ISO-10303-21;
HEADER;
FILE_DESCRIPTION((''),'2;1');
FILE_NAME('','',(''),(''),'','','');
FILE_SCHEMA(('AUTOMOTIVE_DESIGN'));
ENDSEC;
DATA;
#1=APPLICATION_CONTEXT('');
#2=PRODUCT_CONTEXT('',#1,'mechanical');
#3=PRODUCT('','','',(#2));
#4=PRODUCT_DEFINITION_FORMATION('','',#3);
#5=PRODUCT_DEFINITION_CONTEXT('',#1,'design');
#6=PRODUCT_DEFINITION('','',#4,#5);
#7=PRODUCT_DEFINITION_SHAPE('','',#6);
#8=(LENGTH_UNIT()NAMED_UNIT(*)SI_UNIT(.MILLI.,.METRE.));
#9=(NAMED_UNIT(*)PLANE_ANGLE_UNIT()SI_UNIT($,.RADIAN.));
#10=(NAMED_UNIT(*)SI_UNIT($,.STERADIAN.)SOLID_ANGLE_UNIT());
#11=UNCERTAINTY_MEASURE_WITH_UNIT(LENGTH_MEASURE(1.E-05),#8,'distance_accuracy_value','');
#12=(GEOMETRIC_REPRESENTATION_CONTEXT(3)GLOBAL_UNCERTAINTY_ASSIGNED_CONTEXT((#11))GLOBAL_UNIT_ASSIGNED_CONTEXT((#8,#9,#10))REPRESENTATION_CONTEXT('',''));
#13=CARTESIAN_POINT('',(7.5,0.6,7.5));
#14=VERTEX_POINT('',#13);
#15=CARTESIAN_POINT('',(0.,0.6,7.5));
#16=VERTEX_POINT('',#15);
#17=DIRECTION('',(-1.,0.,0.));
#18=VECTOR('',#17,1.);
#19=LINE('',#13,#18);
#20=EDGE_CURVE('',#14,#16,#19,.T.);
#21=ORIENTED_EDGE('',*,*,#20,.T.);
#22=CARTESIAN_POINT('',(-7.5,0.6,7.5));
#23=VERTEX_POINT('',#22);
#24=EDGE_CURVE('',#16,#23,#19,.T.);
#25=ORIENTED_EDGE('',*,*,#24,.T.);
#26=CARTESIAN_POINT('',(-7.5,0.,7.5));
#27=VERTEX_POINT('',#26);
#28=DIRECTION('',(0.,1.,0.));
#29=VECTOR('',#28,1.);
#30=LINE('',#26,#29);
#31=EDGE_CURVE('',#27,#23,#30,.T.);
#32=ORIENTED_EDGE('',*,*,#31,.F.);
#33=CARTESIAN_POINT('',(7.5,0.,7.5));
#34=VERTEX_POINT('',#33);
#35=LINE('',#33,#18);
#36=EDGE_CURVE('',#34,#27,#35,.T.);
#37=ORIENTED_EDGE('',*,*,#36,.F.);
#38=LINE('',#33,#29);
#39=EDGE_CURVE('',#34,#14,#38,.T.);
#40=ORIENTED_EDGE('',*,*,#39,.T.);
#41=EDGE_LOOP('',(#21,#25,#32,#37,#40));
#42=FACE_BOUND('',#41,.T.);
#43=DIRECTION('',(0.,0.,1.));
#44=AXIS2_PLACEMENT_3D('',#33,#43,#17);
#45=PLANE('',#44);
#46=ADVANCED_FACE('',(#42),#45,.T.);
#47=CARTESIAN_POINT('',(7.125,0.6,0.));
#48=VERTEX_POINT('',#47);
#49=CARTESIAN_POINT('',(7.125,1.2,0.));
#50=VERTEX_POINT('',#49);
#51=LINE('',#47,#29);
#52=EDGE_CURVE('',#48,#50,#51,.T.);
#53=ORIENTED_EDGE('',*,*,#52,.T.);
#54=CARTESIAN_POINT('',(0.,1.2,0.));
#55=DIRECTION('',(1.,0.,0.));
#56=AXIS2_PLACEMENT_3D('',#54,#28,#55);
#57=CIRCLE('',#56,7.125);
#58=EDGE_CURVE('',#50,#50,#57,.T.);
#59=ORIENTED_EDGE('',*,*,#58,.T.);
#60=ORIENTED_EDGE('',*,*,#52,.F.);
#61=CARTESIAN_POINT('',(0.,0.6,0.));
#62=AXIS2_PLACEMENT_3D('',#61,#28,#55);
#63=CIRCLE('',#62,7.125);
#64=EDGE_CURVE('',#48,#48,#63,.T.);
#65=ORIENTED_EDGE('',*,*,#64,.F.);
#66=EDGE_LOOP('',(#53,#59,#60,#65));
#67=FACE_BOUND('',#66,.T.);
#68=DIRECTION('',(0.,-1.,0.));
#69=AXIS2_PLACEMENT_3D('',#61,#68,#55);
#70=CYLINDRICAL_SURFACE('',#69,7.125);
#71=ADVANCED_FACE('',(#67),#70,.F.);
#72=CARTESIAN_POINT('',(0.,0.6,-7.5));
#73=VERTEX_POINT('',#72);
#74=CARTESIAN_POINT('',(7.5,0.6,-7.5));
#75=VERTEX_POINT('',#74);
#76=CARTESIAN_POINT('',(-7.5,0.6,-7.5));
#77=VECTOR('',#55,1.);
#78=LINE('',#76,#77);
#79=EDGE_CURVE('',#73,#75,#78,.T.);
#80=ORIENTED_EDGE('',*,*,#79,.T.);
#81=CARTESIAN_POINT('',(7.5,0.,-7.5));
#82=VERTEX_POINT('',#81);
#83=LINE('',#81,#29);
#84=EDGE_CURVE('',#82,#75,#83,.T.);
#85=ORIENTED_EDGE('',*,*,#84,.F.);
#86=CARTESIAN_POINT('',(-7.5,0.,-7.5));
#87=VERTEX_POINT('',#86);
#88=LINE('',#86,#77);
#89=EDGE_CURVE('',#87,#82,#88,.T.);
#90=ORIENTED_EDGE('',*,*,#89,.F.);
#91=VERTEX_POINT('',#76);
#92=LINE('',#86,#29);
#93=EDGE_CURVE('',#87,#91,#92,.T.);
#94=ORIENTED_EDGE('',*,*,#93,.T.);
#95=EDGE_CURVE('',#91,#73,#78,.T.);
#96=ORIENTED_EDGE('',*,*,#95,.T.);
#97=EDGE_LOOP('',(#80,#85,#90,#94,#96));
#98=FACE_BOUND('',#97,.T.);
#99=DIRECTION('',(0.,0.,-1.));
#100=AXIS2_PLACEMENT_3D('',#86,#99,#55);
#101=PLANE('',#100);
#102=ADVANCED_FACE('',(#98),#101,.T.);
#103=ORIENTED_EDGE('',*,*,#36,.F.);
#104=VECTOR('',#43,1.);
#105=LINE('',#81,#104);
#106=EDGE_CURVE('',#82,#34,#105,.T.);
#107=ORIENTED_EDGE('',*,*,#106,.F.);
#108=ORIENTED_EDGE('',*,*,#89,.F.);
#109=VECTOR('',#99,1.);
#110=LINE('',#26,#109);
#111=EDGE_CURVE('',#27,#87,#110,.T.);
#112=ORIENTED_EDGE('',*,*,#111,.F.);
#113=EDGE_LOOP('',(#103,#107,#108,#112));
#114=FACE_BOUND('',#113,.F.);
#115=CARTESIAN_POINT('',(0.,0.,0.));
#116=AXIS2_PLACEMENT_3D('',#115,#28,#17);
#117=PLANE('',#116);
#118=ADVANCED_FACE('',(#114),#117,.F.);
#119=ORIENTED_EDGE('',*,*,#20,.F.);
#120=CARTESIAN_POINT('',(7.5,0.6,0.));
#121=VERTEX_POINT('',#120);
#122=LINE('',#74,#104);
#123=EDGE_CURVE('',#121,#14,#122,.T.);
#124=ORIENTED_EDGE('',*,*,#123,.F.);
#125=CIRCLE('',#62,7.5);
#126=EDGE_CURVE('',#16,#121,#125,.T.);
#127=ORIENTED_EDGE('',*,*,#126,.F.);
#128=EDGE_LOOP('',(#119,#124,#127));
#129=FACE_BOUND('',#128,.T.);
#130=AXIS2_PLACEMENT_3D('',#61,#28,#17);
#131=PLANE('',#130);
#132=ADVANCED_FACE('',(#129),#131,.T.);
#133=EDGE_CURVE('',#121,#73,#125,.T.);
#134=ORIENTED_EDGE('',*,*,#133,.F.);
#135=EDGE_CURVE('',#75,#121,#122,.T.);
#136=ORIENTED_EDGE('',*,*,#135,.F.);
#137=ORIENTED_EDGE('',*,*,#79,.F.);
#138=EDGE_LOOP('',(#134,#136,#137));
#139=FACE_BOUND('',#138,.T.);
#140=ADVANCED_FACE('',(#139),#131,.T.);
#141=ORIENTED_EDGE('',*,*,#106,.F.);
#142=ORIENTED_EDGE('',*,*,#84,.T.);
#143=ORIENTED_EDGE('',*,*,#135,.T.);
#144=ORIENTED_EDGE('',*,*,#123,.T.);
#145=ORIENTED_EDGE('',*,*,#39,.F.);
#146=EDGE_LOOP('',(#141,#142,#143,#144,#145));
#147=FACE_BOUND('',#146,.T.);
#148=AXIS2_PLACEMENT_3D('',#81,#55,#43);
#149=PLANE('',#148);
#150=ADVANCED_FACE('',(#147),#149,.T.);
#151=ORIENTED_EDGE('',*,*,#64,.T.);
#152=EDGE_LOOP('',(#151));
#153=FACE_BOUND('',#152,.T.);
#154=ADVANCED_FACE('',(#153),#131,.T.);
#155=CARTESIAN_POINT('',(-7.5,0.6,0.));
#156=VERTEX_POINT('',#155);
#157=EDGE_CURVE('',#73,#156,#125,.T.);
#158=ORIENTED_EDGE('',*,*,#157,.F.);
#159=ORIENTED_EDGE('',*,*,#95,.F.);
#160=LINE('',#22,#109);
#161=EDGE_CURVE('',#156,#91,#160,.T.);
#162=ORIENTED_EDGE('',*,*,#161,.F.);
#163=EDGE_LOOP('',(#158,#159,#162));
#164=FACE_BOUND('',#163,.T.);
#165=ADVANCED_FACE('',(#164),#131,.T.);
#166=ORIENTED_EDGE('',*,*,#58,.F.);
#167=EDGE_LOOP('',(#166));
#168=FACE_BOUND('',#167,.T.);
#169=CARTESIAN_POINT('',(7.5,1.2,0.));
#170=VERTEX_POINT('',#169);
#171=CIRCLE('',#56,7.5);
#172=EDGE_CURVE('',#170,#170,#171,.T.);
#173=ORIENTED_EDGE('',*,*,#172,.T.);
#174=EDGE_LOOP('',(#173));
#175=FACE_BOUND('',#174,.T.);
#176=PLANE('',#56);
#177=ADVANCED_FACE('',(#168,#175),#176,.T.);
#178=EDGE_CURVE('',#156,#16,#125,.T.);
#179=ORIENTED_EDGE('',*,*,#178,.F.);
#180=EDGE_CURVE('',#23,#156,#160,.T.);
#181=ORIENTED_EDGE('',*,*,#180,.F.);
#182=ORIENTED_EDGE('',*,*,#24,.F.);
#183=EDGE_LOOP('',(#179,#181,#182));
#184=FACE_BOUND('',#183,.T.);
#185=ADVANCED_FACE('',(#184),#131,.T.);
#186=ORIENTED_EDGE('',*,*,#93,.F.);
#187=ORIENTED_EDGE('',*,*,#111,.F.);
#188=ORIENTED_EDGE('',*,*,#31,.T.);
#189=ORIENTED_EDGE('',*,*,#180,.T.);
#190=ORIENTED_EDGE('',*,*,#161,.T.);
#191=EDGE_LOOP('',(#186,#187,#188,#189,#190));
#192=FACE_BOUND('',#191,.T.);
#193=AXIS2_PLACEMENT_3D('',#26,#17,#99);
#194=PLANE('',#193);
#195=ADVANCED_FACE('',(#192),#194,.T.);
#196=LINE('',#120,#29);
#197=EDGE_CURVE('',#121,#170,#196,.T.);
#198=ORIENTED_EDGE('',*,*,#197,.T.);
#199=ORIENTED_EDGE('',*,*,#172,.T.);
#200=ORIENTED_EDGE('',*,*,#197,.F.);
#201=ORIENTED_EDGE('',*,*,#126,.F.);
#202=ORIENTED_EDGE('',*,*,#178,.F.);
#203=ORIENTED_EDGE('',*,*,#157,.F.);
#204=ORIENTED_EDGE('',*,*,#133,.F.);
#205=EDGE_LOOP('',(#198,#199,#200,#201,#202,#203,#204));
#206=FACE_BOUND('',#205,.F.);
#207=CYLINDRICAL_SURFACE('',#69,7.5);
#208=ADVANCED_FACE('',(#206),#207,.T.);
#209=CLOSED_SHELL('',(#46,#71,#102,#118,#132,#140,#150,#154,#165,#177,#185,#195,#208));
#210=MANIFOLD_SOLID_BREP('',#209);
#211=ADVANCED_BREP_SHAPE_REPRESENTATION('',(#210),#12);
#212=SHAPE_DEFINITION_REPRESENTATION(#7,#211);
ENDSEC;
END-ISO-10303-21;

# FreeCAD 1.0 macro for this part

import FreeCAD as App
import Part
import Sketcher

doc = App.newDocument("Part")
body = doc.addObject("PartDesign::Body", "Body")

# Sketch on XZ plane
sketch1 = doc.addObject("Sketcher::SketchObject", "Sketch")
body.addObject(sketch1)
sketch1.AttachmentSupport = (doc.XZ_Plane, [""])
sketch1.MapMode = "FlatFace"
sketch1.addGeometry([
    Part.LineSegment(App.Vector(8, -8, 0), App.Vector(-8, -8, 0)),
    Part.LineSegment(App.Vector(-8, -8, 0), App.Vector(-8, 8, 0)),
    Part.LineSegment(App.Vector(-8, 8, 0), App.Vector(8, 8, 0)),
    Part.LineSegment(App.Vector(8, 8, 0), App.Vector(8, -8, 0)),
], False)
sketch1.addConstraint([
    Sketcher.Constraint("Coincident", 0, 2, 1, 1),
    Sketcher.Constraint("Coincident", 1, 2, 2, 1),
    Sketcher.Constraint("Coincident", 2, 2, 3, 1),
    Sketcher.Constraint("Coincident", 3, 2, 0, 1),
    Sketcher.Constraint("Horizontal", 0),
    Sketcher.Constraint("Vertical", 1),
    Sketcher.Constraint("Horizontal", 2),
    Sketcher.Constraint("Vertical", 3),
    Sketcher.Constraint("Symmetric", 0, 2, 2, 2, -1, 1),
    Sketcher.Constraint("Equal", 2, 1),
    Sketcher.Constraint("DistanceX", 0, 2, 0, 1, 15.0),
])
pad1 = doc.addObject("PartDesign::Pad", "Pad")
body.addObject(pad1)
pad1.Profile = sketch1
pad1.Length = 0.6
pad1.Reversed = True

# Sketch on XZ plane
sketch2 = doc.addObject("Sketcher::SketchObject", "Sketch001")
body.addObject(sketch2)
sketch2.AttachmentSupport = (doc.XZ_Plane, [""])
sketch2.MapMode = "FlatFace"
sketch2.AttachmentOffset = App.Placement(App.Vector(0, 0, -0.6), App.Rotation())
sketch2.addGeometry([
    Part.Circle(App.Vector(0, 0, 0), App.Vector(0, 0, 1), 8),
    Part.Circle(App.Vector(0, 0, 0), App.Vector(0, 0, 1), 7),
], False)
sketch2.addConstraint([
    Sketcher.Constraint("Coincident", 0, 3, -1, 1),
    Sketcher.Constraint("Coincident", 1, 3, -1, 1),
    Sketcher.Constraint("Diameter", 0, 15.0),
    Sketcher.Constraint("Diameter", 1, 14.25),
])
pad2 = doc.addObject("PartDesign::Pad", "Pad001")
body.addObject(pad2)
pad2.Profile = sketch2
pad2.Length = 0.6
pad2.Reversed = True

doc.recompute()
